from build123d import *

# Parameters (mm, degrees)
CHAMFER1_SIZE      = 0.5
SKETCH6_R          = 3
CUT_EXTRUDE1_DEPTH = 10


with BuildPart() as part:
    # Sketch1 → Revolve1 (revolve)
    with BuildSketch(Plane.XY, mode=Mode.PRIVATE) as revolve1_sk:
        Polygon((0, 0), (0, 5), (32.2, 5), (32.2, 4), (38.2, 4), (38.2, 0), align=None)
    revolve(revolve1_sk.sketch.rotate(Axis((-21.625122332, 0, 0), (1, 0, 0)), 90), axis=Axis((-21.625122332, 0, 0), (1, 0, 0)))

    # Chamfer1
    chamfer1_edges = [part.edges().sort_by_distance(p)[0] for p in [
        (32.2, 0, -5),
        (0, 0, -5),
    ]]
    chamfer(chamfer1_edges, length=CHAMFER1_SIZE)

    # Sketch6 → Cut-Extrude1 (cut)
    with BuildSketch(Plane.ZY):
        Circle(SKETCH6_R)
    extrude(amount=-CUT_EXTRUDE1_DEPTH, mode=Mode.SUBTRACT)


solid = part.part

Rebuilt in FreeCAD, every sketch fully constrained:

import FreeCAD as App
import Part
import Sketcher
from FreeCAD import Vector


def edges_at(feature, points):
    """Names of the edges that pass closest to the given points."""
    edges = feature.Shape.Edges
    near = lambda p: min(range(len(edges)), key=lambda i: edges[i].distToShape(Part.Vertex(*p))[0])
    return sorted({f"Edge{near(p) + 1}" for p in points})

doc = App.newDocument("Part")
params = doc.addObject("Spreadsheet::Sheet", "Params")
for row, (alias, value) in enumerate([
    ("sketch1_width", "6 mm"),
    ("sketch1_height", "5 mm"),
    ("sketch1_height2", "4 mm"),
    ("sketch1_width2", "38.2 mm"),
    ("revolution_angle", "360 deg"),
    ("chamfer_size", "0.5 mm"),
    ("sketch2_diameter", "6 mm"),
    ("pocket1_length", "10 mm"),
], start=1):
    params.set(f"A{row}", alias)
    params.set(f"B{row}", "=" + value)
    params.setAlias(f"B{row}", alias)

body = doc.addObject("PartDesign::Body", "Body")

sketch1 = body.newObject("Sketcher::SketchObject", "Sketch")
sketch1.AttachmentSupport = (doc.getObject("XY_Plane"), [""])
sketch1.MapMode = "FlatFace"
sketch1.addGeometry([
    Part.LineSegment(Vector(0, 5, 0), Vector(0, 0, 0)),
    Part.LineSegment(Vector(0, 0, 0), Vector(38.2, 0, 0)),
    Part.LineSegment(Vector(38.2, 0, 0), Vector(38.2, 4, 0)),
    Part.LineSegment(Vector(38.2, 4, 0), Vector(32.2, 4, 0)),
    Part.LineSegment(Vector(32.2, 4, 0), Vector(32.2, 5, 0)),
    Part.LineSegment(Vector(32.2, 5, 0), Vector(0, 5, 0)),
], False)
sketch1.addConstraint([
    Sketcher.Constraint("Coincident", 0, 2, 1, 1),
    Sketcher.Constraint("Coincident", 1, 2, 2, 1),
    Sketcher.Constraint("Coincident", 2, 2, 3, 1),
    Sketcher.Constraint("Coincident", 3, 2, 4, 1),
    Sketcher.Constraint("Coincident", 4, 2, 5, 1),
    Sketcher.Constraint("Coincident", 5, 2, 0, 1),
    Sketcher.Constraint("Vertical", 0),
    Sketcher.Constraint("Horizontal", 1),
    Sketcher.Constraint("Vertical", 2),
    Sketcher.Constraint("Horizontal", 3),
    Sketcher.Constraint("Vertical", 4),
    Sketcher.Constraint("Horizontal", 5),
    Sketcher.Constraint("Coincident", 0, 2, -1, 1),
    Sketcher.Constraint("DistanceX", 3, 2, 3, 1, 6.0),
    Sketcher.Constraint("DistanceY", 0, 2, 0, 1, 5.0),
    Sketcher.Constraint("DistanceY", 2, 1, 2, 2, 4.0),
    Sketcher.Constraint("DistanceX", 1, 1, 1, 2, 38.2),
])
sketch1.setExpression("Constraints[13]", "Params.sketch1_width")
sketch1.setExpression("Constraints[14]", "Params.sketch1_height")
sketch1.setExpression("Constraints[15]", "Params.sketch1_height2")
sketch1.setExpression("Constraints[16]", "Params.sketch1_width2")
revolution = body.newObject("PartDesign::Revolution", "Revolution")
revolution.Profile = sketch1
revolution.ReferenceAxis = (sketch1, ["H_Axis"])
revolution.setExpression("Angle", "Params.revolution_angle")
doc.recompute()

chamfer = body.newObject("PartDesign::Chamfer", "Chamfer")
chamfer.Base = (revolution, edges_at(revolution, [(32.2, 0, -5), (0, 0, -5)]))
chamfer.setExpression("Size", "Params.chamfer_size")

sketch2 = body.newObject("Sketcher::SketchObject", "Sketch001")
sketch2.AttachmentSupport = (doc.getObject("YZ_Plane"), [""])
sketch2.MapMode = "FlatFace"
sketch2.addGeometry(Part.Circle(Vector(0, 0, 0), Vector(0, 0, 1), 3), False)
sketch2.addConstraint([
    Sketcher.Constraint("Coincident", 0, 3, -1, 1),
    Sketcher.Constraint("Diameter", 0, 6.0),
])
sketch2.setExpression("Constraints[1]", "Params.sketch2_diameter")
pocket1 = body.newObject("PartDesign::Pocket", "Pocket")
pocket1.Profile = sketch2
pocket1.setExpression("Length", "Params.pocket1_length")
pocket1.Reversed = True

doc.recompute()
